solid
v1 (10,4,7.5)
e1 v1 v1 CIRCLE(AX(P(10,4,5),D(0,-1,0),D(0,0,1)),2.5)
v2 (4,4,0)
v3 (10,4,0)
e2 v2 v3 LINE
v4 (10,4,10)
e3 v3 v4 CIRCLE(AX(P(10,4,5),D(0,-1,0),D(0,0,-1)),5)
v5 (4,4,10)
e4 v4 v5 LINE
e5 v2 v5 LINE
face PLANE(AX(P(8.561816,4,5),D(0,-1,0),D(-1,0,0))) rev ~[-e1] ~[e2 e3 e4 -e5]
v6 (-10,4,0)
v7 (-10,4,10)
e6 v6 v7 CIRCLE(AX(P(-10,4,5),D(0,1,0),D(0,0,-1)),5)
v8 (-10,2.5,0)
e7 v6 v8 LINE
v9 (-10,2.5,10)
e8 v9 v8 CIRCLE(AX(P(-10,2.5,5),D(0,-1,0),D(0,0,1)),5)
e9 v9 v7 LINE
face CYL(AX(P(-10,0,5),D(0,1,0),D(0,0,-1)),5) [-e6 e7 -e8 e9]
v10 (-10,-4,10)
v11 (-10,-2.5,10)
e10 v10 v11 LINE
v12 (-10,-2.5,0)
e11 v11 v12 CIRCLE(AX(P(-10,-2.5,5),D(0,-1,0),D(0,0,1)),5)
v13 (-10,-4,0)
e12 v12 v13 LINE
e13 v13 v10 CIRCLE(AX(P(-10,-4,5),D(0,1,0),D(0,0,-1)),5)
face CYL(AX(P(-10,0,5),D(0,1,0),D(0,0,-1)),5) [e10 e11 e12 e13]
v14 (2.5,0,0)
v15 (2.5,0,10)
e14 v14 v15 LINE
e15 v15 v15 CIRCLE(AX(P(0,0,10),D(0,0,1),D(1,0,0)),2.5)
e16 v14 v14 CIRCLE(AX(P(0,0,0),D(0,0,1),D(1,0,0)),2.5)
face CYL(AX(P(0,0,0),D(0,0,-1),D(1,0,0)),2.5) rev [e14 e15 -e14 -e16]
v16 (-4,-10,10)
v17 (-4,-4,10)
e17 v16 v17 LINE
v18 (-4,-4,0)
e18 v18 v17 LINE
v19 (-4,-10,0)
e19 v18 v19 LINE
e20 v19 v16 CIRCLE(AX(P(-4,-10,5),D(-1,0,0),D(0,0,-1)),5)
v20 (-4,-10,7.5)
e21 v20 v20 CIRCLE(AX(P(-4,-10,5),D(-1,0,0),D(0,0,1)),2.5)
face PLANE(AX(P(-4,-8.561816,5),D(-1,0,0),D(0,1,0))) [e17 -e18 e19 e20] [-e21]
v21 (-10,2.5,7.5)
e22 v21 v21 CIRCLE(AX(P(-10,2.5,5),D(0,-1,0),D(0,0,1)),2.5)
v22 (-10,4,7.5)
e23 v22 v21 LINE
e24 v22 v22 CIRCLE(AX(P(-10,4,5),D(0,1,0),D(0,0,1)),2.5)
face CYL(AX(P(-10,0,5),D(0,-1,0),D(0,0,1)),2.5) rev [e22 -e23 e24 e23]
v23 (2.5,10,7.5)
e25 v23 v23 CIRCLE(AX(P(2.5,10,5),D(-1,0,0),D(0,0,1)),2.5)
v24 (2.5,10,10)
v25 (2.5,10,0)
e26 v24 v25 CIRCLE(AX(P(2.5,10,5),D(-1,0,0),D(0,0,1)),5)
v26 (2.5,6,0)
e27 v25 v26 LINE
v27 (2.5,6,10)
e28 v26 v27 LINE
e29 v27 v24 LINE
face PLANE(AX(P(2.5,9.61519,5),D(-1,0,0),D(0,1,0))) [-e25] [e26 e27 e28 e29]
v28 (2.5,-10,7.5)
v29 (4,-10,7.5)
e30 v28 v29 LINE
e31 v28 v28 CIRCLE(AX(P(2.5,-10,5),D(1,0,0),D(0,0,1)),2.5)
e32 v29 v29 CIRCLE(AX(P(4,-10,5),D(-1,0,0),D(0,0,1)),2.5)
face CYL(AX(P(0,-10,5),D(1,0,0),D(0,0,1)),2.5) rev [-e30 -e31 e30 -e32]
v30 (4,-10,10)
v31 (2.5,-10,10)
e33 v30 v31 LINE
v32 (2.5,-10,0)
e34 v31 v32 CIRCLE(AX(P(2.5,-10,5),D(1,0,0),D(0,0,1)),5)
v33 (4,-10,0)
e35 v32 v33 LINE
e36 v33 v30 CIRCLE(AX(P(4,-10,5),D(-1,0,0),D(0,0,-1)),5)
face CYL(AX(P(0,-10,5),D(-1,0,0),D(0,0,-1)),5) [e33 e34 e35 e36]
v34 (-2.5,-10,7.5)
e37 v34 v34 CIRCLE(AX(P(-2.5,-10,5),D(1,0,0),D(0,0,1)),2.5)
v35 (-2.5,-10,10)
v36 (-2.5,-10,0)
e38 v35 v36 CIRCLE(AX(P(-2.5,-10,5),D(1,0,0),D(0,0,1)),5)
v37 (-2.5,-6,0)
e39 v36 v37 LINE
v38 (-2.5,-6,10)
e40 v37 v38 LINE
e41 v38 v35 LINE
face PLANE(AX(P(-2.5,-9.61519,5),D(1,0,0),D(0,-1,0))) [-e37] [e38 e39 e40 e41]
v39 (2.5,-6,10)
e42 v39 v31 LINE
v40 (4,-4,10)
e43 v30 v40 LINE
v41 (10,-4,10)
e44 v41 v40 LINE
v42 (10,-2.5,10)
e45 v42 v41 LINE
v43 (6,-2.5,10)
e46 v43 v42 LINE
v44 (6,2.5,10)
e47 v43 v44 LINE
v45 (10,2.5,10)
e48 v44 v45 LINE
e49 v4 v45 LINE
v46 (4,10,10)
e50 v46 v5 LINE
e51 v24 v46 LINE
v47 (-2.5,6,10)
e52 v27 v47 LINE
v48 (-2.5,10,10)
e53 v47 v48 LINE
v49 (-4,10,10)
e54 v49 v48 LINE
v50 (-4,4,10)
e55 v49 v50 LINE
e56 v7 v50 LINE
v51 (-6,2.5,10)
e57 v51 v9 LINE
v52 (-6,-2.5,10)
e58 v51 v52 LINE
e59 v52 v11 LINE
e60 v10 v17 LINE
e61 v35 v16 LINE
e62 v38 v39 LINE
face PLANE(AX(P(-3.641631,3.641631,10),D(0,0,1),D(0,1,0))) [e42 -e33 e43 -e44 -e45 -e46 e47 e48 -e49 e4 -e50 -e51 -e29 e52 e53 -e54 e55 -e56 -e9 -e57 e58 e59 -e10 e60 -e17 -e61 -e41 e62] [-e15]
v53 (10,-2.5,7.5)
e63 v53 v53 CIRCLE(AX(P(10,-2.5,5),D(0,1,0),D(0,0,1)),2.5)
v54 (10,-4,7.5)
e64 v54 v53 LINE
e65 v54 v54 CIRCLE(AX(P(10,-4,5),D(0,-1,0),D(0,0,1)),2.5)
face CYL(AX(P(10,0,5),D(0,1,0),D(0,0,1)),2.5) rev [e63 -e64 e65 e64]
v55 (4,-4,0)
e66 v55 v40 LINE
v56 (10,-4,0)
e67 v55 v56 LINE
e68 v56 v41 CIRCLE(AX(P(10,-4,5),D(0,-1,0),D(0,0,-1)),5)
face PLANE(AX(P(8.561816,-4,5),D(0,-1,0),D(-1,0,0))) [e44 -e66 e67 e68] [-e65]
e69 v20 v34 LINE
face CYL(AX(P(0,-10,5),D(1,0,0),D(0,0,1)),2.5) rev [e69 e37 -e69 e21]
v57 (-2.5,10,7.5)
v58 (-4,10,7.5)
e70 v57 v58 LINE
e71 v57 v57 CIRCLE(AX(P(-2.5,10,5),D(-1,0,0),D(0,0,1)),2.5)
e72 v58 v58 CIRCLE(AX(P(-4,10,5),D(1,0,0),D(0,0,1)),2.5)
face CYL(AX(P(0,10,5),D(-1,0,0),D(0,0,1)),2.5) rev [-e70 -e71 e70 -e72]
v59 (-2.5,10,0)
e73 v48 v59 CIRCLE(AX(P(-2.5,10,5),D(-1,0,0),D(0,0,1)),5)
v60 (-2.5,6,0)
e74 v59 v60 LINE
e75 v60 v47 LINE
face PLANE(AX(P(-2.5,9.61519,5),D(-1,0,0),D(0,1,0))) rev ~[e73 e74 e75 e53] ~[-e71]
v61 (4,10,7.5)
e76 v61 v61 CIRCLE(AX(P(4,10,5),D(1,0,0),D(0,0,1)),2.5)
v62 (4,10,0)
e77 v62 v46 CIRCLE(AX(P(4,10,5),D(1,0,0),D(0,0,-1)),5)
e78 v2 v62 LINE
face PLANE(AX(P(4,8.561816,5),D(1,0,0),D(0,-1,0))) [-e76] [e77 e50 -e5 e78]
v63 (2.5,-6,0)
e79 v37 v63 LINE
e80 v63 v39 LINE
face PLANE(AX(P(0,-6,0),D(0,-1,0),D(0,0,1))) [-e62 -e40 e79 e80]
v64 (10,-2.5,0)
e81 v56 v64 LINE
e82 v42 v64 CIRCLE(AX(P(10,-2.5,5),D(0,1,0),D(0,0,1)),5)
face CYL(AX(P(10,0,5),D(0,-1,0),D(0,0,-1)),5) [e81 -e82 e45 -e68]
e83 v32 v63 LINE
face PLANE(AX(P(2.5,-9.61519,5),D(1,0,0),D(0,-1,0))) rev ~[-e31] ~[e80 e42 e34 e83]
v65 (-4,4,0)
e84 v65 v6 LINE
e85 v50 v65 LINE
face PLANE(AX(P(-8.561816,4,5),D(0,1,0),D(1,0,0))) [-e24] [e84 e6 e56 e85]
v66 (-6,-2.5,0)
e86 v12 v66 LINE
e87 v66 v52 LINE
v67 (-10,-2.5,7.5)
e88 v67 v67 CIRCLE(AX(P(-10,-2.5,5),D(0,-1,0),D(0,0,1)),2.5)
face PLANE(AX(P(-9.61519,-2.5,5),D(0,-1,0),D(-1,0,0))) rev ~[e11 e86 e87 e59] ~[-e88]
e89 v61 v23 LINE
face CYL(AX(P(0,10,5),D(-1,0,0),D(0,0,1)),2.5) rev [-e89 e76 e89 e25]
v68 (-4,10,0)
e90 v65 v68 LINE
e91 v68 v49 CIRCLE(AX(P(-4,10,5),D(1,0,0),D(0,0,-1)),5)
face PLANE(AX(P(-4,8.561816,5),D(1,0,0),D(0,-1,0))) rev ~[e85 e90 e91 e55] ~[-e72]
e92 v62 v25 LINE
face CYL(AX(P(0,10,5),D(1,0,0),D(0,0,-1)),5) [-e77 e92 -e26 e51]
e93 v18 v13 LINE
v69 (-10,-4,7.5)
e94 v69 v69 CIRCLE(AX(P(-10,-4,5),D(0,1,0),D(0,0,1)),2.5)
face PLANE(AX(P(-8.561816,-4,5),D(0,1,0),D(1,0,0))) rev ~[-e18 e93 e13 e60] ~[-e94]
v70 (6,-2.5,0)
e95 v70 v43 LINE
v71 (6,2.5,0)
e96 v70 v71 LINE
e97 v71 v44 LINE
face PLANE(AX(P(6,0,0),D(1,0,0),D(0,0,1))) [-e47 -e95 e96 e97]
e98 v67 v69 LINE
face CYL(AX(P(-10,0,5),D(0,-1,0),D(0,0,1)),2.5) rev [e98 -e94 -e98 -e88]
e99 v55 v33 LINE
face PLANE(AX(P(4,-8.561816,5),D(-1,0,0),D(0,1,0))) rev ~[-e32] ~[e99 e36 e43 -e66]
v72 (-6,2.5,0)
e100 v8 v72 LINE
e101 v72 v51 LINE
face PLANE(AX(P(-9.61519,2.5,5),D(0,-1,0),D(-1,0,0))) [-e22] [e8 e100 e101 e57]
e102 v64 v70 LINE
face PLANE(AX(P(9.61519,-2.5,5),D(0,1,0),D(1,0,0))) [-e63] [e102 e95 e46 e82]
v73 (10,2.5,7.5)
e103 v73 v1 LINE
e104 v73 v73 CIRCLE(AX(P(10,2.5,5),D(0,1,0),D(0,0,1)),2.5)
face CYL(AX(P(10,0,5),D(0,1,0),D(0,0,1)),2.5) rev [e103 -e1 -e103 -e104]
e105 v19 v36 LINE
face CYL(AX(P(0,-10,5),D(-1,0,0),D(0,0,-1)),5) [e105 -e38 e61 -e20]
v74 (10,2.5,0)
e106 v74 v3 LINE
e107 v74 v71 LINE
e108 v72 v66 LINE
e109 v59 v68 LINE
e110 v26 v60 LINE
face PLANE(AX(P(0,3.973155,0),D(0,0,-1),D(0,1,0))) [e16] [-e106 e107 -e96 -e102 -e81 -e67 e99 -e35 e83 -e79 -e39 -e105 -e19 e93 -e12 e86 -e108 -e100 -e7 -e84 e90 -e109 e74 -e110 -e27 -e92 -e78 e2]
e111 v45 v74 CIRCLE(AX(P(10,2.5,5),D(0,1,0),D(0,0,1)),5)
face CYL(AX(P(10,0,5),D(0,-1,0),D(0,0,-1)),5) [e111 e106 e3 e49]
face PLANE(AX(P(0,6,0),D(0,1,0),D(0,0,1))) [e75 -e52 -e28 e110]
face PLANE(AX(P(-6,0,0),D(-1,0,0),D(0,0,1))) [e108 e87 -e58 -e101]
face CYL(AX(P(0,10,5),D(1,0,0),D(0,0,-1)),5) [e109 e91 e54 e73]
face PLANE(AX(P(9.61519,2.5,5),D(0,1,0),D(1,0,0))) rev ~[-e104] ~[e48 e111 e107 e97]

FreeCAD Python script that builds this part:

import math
import FreeCAD as App
import Part
import Sketcher
Q = App.Units.Quantity

doc = App.newDocument("Part")
body = doc.addObject("PartDesign::Body", "Body")

# Sketch on XY plane
sketch1 = body.newObject("Sketcher::SketchObject", "Sketch")
sketch1.AttachmentSupport = (doc.getObject("XY_Plane"), [""])
sketch1.MapMode = "FlatFace"
sketch1.addGeometry([
    Part.Circle(App.Vector(0, 0, 0), App.Vector(0, 0, 1), 5),
    Part.Circle(App.Vector(0, 0, 0), App.Vector(0, 0, 1), 2.5),
], False)
sketch1.addConstraint([
    Sketcher.Constraint("Coincident", 0, 3, -1, 1),
    Sketcher.Constraint("Coincident", 1, 3, -1, 1),
    Sketcher.Constraint("Diameter", 0, Q("10 mm")),
    Sketcher.Constraint("Diameter", 1, Q("5 mm")),
])
pad1 = body.newObject("PartDesign::Pad", "Pad")
pad1.Profile = sketch1
pad1.Length = 10

# Sketch on XZ plane
sketch2 = body.newObject("Sketcher::SketchObject", "Sketch001")
sketch2.AttachmentSupport = (doc.getObject("XZ_Plane"), [""])
sketch2.MapMode = "FlatFace"
sketch2.addGeometry([
    Part.ArcOfCircle(Part.Circle(App.Vector(-10, 5, 0), App.Vector(0, 0, 1), 5), math.radians(90), math.radians(270)),  # 0
    Part.LineSegment(App.Vector(-10, 10, 0), App.Vector(-4, 10, 0)),  # 1
    Part.LineSegment(App.Vector(-4, 10, 0), App.Vector(-4, 0, 0)),  # 2
    Part.LineSegment(App.Vector(-4, 0, 0), App.Vector(-10, 0, 0)),  # 3
    Part.Circle(App.Vector(-10, 5, 0), App.Vector(0, 0, 1), 2.5),  # 4
], False)
sketch2.addConstraint([
    Sketcher.Constraint("Tangent", 0, 1, 1, 1),
    Sketcher.Constraint("Coincident", 1, 2, 2, 1),
    Sketcher.Constraint("Coincident", 2, 2, 3, 1),
    Sketcher.Constraint("Tangent", 3, 2, 0, 2),
    Sketcher.Constraint("Horizontal", 1),
    Sketcher.Constraint("Vertical", 2),
    Sketcher.Constraint("Horizontal", 3),
    Sketcher.Constraint("Coincident", 4, 3, 0, 3),
    Sketcher.Constraint("PointOnObject", 2, 2, -1),
    Sketcher.Constraint("Diameter", 4, Q("5 mm")),
    Sketcher.Constraint("Radius", 0, Q("5 mm")),
    Sketcher.Constraint("DistanceX", 0, 3, -1, 1, Q("10 mm")),
    Sketcher.Constraint("DistanceX", 1, 1, 1, 2, Q("6.026845 mm")),
])
pad2 = body.newObject("PartDesign::Pad", "Pad001")
pad2.Profile = sketch2
pad2.Length = 8
pad2.Midplane = True
doc.recompute()

polarpattern = body.newObject("PartDesign::PolarPattern", "PolarPattern")
polarpattern.Originals = [pad2]
polarpattern.Axis = (doc.getObject("Z_Axis"), [""])
polarpattern.Angle = 360
polarpattern.Occurrences = 4
body.Tip = polarpattern

# Sketch on XZ plane
sketch3 = body.newObject("Sketcher::SketchObject", "Sketch002")
sketch3.AttachmentSupport = (doc.getObject("XZ_Plane"), [""])
sketch3.MapMode = "FlatFace"
sketch3.addGeometry([
    Part.LineSegment(App.Vector(-6, 0, 0), App.Vector(-10, 0, 0)),
    Part.ArcOfCircle(Part.Circle(App.Vector(-10, 5, 0), App.Vector(0, 0, 1), 5), math.radians(90), math.radians(270)),
    Part.LineSegment(App.Vector(-10, 10, 0), App.Vector(-6, 10, 0)),
    Part.LineSegment(App.Vector(-6, 10, 0), App.Vector(-6, 0, 0)),
], False)
sketch3.addConstraint([
    Sketcher.Constraint("Tangent", 0, 2, 1, 2),
    Sketcher.Constraint("Tangent", 1, 1, 2, 1),
    Sketcher.Constraint("Coincident", 2, 2, 3, 1),
    Sketcher.Constraint("Coincident", 3, 2, 0, 1),
    Sketcher.Constraint("Horizontal", 0),
    Sketcher.Constraint("Horizontal", 2),
    Sketcher.Constraint("Vertical", 3),
    Sketcher.Constraint("PointOnObject", 0, 2, -1),
    Sketcher.Constraint("Radius", 1, Q("5 mm")),
    Sketcher.Constraint("DistanceX", 0, 2, 0, 1, Q("4 mm")),
    Sketcher.Constraint("DistanceX", 1, 3, -1, 1, Q("10 mm")),
])
pocket1 = body.newObject("PartDesign::Pocket", "Pocket")
pocket1.Profile = sketch3
pocket1.Length = 5
pocket1.Midplane = True
doc.recompute()

polarpattern2 = body.newObject("PartDesign::PolarPattern", "PolarPattern001")
polarpattern2.Originals = [pocket1]
polarpattern2.Axis = (doc.getObject("Z_Axis"), [""])
polarpattern2.Angle = 360
polarpattern2.Occurrences = 4
body.Tip = polarpattern2

# Sketch on XY plane
sketch4 = body.newObject("Sketcher::SketchObject", "Sketch003")
sketch4.AttachmentSupport = (doc.getObject("XY_Plane"), [""])
sketch4.MapMode = "FlatFace"
sketch4.addGeometry([
    Part.LineSegment(App.Vector(3, 4, 0), App.Vector(4, 4, 0)),
    Part.LineSegment(App.Vector(4, 4, 0), App.Vector(4, 3, 0)),
    Part.LineSegment(App.Vector(4, 3, 0), App.Vector(3, 4, 0)),
], False)
sketch4.addConstraint([
    Sketcher.Constraint("Coincident", 0, 2, 1, 1),
    Sketcher.Constraint("Coincident", 1, 2, 2, 1),
    Sketcher.Constraint("Coincident", 2, 2, 0, 1),
    Sketcher.Constraint("Horizontal", 0),
    Sketcher.Constraint("Vertical", 1),
    Sketcher.Constraint("Equal", 0, 1),
    Sketcher.Constraint("DistanceX", 0, 1, 0, 2, Q("0.937692 mm")),
    Sketcher.Constraint("DistanceX", -1, 1, 0, 2, Q("3.973155 mm")),
    Sketcher.Constraint("DistanceY", -1, 1, 0, 2, Q("3.973155 mm")),
])
pad3 = body.newObject("PartDesign::Pad", "Pad002")
pad3.Profile = sketch4
pad3.Length = 10
doc.recompute()

polarpattern3 = body.newObject("PartDesign::PolarPattern", "PolarPattern002")
polarpattern3.Originals = [pad3]
polarpattern3.Axis = (doc.getObject("Z_Axis"), [""])
polarpattern3.Angle = 360
polarpattern3.Occurrences = 4
body.Tip = polarpattern3

doc.recompute()
